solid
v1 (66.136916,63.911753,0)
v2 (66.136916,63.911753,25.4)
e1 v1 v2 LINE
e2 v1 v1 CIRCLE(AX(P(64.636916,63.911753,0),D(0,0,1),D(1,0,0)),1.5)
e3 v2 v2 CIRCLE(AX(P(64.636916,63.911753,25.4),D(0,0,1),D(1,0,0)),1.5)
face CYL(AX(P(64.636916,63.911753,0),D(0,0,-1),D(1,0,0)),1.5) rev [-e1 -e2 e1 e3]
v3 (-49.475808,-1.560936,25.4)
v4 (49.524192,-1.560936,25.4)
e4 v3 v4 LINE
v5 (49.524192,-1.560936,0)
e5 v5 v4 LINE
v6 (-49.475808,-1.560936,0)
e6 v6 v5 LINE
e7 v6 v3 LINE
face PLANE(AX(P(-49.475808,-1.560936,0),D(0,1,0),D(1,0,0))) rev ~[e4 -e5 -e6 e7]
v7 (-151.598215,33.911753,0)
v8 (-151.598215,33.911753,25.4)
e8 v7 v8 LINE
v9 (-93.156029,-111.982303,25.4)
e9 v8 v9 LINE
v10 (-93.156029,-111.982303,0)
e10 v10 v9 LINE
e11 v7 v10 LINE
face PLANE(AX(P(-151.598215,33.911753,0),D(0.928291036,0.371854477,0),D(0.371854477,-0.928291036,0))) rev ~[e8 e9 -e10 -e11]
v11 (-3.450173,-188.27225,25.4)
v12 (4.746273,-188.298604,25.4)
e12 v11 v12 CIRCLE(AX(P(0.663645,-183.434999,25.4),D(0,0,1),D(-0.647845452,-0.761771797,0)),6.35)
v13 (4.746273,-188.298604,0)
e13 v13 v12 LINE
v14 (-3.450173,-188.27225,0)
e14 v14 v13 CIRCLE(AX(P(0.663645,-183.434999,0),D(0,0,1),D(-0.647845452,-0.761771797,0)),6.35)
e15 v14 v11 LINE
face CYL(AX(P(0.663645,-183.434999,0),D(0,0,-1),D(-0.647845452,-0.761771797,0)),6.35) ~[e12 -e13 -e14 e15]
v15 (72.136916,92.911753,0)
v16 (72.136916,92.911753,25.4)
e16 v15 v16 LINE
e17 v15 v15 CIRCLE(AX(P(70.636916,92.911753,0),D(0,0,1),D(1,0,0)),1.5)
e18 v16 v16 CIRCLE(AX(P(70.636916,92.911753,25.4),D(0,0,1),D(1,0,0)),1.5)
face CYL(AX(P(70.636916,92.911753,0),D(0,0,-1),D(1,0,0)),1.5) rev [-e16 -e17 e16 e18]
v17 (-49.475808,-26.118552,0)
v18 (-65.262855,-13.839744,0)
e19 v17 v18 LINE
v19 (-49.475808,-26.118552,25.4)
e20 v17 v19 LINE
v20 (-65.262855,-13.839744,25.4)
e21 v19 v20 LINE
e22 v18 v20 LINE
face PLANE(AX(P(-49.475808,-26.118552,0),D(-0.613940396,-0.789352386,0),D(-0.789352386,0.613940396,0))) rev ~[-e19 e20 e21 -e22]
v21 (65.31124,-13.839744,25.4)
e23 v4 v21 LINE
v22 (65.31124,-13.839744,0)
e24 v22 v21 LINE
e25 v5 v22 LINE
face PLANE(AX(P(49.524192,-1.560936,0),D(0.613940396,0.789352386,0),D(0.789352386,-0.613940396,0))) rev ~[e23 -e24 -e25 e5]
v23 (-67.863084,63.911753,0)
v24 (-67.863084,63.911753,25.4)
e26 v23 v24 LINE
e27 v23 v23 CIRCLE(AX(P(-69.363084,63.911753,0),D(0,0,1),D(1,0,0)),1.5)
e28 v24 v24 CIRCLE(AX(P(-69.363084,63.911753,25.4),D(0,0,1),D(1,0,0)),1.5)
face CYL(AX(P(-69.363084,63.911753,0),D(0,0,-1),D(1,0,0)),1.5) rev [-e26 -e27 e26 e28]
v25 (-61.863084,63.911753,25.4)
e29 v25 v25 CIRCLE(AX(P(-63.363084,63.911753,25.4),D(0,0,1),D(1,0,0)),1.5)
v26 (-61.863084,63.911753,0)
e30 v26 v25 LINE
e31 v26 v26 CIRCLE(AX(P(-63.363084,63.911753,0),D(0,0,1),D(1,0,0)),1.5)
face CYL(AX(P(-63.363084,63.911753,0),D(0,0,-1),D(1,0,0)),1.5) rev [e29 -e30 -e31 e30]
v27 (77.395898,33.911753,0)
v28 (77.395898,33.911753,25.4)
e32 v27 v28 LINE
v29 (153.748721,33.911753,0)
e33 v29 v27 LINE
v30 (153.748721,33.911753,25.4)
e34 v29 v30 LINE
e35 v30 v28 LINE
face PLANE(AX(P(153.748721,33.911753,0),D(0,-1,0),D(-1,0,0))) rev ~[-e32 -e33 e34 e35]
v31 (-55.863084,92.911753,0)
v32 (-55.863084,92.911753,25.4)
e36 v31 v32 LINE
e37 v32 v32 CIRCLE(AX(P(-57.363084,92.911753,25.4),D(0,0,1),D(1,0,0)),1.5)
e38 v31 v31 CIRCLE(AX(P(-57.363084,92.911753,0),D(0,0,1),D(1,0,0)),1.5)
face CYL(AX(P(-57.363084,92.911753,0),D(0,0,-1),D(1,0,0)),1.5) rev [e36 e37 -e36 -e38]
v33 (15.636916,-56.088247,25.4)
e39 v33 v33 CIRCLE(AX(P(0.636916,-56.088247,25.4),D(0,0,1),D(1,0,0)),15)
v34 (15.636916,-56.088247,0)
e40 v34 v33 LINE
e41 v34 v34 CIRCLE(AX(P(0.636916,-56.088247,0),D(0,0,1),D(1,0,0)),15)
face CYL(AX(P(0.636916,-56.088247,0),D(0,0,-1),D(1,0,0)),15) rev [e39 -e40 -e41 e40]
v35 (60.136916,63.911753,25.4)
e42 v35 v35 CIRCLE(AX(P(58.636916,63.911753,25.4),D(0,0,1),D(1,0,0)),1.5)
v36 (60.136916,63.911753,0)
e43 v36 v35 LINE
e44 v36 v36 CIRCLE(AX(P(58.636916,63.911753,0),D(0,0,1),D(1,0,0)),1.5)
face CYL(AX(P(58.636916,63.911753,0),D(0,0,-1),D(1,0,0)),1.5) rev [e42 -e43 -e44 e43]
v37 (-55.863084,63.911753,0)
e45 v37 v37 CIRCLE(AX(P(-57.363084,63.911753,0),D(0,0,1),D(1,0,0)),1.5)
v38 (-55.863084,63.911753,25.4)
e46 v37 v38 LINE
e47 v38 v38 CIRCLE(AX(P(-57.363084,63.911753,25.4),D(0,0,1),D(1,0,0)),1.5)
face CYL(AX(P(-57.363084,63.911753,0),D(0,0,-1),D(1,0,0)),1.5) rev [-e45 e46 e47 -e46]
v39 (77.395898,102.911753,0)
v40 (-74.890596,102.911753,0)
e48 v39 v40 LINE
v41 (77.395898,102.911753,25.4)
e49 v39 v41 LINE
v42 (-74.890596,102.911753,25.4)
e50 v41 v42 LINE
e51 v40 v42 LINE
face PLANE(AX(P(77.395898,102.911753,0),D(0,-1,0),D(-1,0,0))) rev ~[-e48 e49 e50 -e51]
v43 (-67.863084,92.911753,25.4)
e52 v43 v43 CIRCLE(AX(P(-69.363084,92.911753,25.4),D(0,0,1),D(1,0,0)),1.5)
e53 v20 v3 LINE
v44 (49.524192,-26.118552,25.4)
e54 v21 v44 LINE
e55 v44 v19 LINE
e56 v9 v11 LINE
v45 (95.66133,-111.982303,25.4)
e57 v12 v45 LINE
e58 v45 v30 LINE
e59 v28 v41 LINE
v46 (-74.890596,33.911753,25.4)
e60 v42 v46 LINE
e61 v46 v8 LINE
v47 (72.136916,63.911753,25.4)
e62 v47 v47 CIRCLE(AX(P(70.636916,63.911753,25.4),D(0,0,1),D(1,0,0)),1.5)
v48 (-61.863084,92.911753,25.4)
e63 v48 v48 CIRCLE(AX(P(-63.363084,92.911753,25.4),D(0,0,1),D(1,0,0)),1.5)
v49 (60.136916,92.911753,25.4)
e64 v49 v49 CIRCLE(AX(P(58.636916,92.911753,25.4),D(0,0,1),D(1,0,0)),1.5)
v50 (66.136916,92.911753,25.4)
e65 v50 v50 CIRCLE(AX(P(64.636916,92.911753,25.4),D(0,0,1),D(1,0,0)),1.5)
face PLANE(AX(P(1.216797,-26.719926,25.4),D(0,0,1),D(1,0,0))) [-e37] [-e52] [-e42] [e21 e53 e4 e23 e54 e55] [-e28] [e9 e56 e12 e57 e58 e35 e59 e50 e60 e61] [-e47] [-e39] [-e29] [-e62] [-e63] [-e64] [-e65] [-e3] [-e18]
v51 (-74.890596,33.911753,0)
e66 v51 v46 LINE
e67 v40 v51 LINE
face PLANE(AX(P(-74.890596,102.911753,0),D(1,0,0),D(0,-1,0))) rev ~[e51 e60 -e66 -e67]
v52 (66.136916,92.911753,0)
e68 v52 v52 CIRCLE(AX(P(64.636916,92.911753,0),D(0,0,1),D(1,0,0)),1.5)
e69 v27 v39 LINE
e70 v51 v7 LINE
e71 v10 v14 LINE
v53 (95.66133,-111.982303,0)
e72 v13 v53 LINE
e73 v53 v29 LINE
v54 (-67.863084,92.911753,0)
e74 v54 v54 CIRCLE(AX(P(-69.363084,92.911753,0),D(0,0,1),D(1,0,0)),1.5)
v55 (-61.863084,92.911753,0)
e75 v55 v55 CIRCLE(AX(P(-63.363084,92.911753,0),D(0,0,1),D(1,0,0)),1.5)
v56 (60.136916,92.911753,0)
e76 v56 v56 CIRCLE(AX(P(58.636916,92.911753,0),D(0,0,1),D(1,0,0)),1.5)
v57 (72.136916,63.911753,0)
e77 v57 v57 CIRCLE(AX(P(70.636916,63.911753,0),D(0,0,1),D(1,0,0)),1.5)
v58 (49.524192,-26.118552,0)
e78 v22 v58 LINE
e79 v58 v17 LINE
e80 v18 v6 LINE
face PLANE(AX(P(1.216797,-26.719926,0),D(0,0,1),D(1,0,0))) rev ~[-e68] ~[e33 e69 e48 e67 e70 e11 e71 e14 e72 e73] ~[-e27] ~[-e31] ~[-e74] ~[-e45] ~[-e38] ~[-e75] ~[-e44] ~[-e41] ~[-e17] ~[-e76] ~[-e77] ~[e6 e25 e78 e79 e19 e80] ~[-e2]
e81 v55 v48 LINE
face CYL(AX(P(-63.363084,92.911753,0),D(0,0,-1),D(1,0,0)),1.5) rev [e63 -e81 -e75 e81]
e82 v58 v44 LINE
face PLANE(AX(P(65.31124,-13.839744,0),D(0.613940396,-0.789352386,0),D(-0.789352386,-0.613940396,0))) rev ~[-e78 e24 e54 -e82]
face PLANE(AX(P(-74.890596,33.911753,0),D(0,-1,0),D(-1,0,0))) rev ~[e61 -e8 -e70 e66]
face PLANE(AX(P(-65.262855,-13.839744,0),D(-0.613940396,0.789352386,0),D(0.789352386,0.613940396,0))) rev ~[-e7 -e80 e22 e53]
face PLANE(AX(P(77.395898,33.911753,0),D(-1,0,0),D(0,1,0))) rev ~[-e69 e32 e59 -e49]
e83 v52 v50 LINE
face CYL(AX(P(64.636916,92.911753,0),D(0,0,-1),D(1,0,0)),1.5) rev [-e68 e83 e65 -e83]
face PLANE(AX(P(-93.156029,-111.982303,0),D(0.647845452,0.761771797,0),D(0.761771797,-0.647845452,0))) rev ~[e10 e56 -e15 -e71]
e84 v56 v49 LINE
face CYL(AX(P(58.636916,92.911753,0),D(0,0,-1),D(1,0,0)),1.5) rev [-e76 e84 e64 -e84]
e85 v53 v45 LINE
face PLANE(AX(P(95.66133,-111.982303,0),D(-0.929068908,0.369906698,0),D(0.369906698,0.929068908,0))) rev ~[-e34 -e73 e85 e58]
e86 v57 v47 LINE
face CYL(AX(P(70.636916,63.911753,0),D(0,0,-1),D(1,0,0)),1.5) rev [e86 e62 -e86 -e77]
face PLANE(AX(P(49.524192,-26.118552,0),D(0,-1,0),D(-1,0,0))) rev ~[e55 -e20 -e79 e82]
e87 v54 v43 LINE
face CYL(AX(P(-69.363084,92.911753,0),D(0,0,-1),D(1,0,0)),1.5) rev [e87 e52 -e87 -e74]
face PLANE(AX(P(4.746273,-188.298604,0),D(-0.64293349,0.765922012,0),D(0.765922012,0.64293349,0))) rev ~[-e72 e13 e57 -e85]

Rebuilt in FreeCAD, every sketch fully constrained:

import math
import FreeCAD as App
import Part
import Sketcher
Q = App.Units.Quantity

doc = App.newDocument("Part")
params = doc.addObject("Spreadsheet::Sheet", "Params")
for row, (alias, value) in enumerate([
    ("sketch1_diameter", "30 mm"),
    ("sketch1_diameter2", "3 mm"),
    ("sketch1_width", "99 mm"),
    ("sketch1_height", "69 mm"),
    ("sketch1_radius", "6.35 mm"),
    ("pad1_length", "25.4 mm"),
], start=1):
    params.set(f"A{row}", alias)
    params.set(f"B{row}", "=" + value)
    params.setAlias(f"B{row}", alias)

body = doc.addObject("PartDesign::Body", "Body")

sketch1 = body.newObject("Sketcher::SketchObject", "Sketch")
sketch1.AttachmentSupport = (doc.getObject("XY_Plane"), [""])
sketch1.MapMode = "FlatFace"
sketch1.addGeometry(Part.LineSegment(App.Vector(77.4, 102.9, 0), App.Vector(-74.9, 102.9, 0)), False)
sketch1.addGeometry(Part.LineSegment(App.Vector(-74.9, 102.9, 0), App.Vector(-74.9, 33.9, 0)), False)
sketch1.addGeometry(Part.LineSegment(App.Vector(-74.9, 33.9, 0), App.Vector(-151.6, 33.9, 0)), False)
sketch1.addGeometry(Part.LineSegment(App.Vector(-151.6, 33.9, 0), App.Vector(-93.2, -112, 0)), False)
sketch1.addGeometry(Part.LineSegment(App.Vector(-93.2, -112, 0), App.Vector(-3.5, -188.3, 0)), False)
sketch1.addGeometry(Part.ArcOfCircle(Part.Circle(App.Vector(0.7, -183.4, 0), App.Vector(0, 0, 1), 6.3), math.radians(-130), math.radians(-50)), False)
sketch1.addGeometry(Part.LineSegment(App.Vector(4.7, -188.3, 0), App.Vector(95.7, -112, 0)), False)
sketch1.addGeometry(Part.LineSegment(App.Vector(95.7, -112, 0), App.Vector(153.7, 33.9, 0)), False)
sketch1.addGeometry(Part.LineSegment(App.Vector(153.7, 33.9, 0), App.Vector(77.4, 33.9, 0)), False)
sketch1.addGeometry(Part.LineSegment(App.Vector(77.4, 33.9, 0), App.Vector(77.4, 102.9, 0)), False)
sketch1.addGeometry(Part.LineSegment(App.Vector(49.5, -26.1, 0), App.Vector(-49.5, -26.1, 0)), False)
sketch1.addGeometry(Part.LineSegment(App.Vector(-49.5, -26.1, 0), App.Vector(-65.3, -13.8, 0)), False)
sketch1.addGeometry(Part.LineSegment(App.Vector(-65.3, -13.8, 0), App.Vector(-49.5, -1.6, 0)), False)
sketch1.addGeometry(Part.LineSegment(App.Vector(-49.5, -1.6, 0), App.Vector(49.5, -1.6, 0)), False)
sketch1.addGeometry(Part.LineSegment(App.Vector(49.5, -1.6, 0), App.Vector(65.3, -13.8, 0)), False)
sketch1.addGeometry(Part.LineSegment(App.Vector(65.3, -13.8, 0), App.Vector(49.5, -26.1, 0)), False)
sketch1.addGeometry(Part.Circle(App.Vector(0.6, -56.1, 0), App.Vector(0, 0, 1), 15), False)
sketch1.addGeometry(Part.Circle(App.Vector(-69.4, 63.9, 0), App.Vector(0, 0, 1), 1.5), False)
sketch1.addGeometry(Part.Circle(App.Vector(-63.4, 63.9, 0), App.Vector(0, 0, 1), 1.5), False)
sketch1.addGeometry(Part.Circle(App.Vector(-57.4, 63.9, 0), App.Vector(0, 0, 1), 1.5), False)
sketch1.addGeometry(Part.Circle(App.Vector(-69.4, 92.9, 0), App.Vector(0, 0, 1), 1.5), False)
sketch1.addGeometry(Part.Circle(App.Vector(-63.4, 92.9, 0), App.Vector(0, 0, 1), 1.5), False)
sketch1.addGeometry(Part.Circle(App.Vector(-57.4, 92.9, 0), App.Vector(0, 0, 1), 1.5), False)
sketch1.addGeometry(Part.Circle(App.Vector(58.6, 63.9, 0), App.Vector(0, 0, 1), 1.5), False)
sketch1.addGeometry(Part.Circle(App.Vector(64.6, 63.9, 0), App.Vector(0, 0, 1), 1.5), False)
sketch1.addGeometry(Part.Circle(App.Vector(70.6, 63.9, 0), App.Vector(0, 0, 1), 1.5), False)
sketch1.addGeometry(Part.Circle(App.Vector(58.6, 92.9, 0), App.Vector(0, 0, 1), 1.5), False)
sketch1.addGeometry(Part.Circle(App.Vector(64.6, 92.9, 0), App.Vector(0, 0, 1), 1.5), False)
sketch1.addGeometry(Part.Circle(App.Vector(70.6, 92.9, 0), App.Vector(0, 0, 1), 1.5), False)
sketch1.addConstraint(Sketcher.Constraint("Coincident", 0, 2, 1, 1))
sketch1.addConstraint(Sketcher.Constraint("Coincident", 1, 2, 2, 1))
sketch1.addConstraint(Sketcher.Constraint("Coincident", 2, 2, 3, 1))
sketch1.addConstraint(Sketcher.Constraint("Coincident", 3, 2, 4, 1))
sketch1.addConstraint(Sketcher.Constraint("Tangent", 4, 2, 5, 1))
sketch1.addConstraint(Sketcher.Constraint("Tangent", 5, 2, 6, 1))
sketch1.addConstraint(Sketcher.Constraint("Coincident", 6, 2, 7, 1))
sketch1.addConstraint(Sketcher.Constraint("Coincident", 7, 2, 8, 1))
sketch1.addConstraint(Sketcher.Constraint("Coincident", 8, 2, 9, 1))
sketch1.addConstraint(Sketcher.Constraint("Coincident", 9, 2, 0, 1))
sketch1.addConstraint(Sketcher.Constraint("Coincident", 10, 2, 11, 1))
sketch1.addConstraint(Sketcher.Constraint("Coincident", 11, 2, 12, 1))
sketch1.addConstraint(Sketcher.Constraint("Coincident", 12, 2, 13, 1))
sketch1.addConstraint(Sketcher.Constraint("Coincident", 13, 2, 14, 1))
sketch1.addConstraint(Sketcher.Constraint("Coincident", 14, 2, 15, 1))
sketch1.addConstraint(Sketcher.Constraint("Coincident", 15, 2, 10, 1))
sketch1.addConstraint(Sketcher.Constraint("Horizontal", 0))
sketch1.addConstraint(Sketcher.Constraint("Vertical", 1))
sketch1.addConstraint(Sketcher.Constraint("Horizontal", 2))
sketch1.addConstraint(Sketcher.Constraint("Horizontal", 8))
sketch1.addConstraint(Sketcher.Constraint("Vertical", 9))
sketch1.addConstraint(Sketcher.Constraint("Horizontal", 10))
sketch1.addConstraint(Sketcher.Constraint("Horizontal", 13))
sketch1.addConstraint(Sketcher.Constraint("Equal", 17, 18))
sketch1.addConstraint(Sketcher.Constraint("Equal", 18, 19))
sketch1.addConstraint(Sketcher.Constraint("Equal", 19, 20))
sketch1.addConstraint(Sketcher.Constraint("Equal", 20, 21))
sketch1.addConstraint(Sketcher.Constraint("Equal", 21, 22))
sketch1.addConstraint(Sketcher.Constraint("Equal", 22, 23))
sketch1.addConstraint(Sketcher.Constraint("Equal", 23, 24))
sketch1.addConstraint(Sketcher.Constraint("Equal", 24, 25))
sketch1.addConstraint(Sketcher.Constraint("Equal", 25, 26))
sketch1.addConstraint(Sketcher.Constraint("Equal", 26, 27))
sketch1.addConstraint(Sketcher.Constraint("Equal", 27, 28))
sketch1.addConstraint(Sketcher.Constraint("Parallel", 11, 14))
sketch1.addConstraint(Sketcher.Constraint("Parallel", 12, 15))
sketch1.addConstraint(Sketcher.Constraint("Horizontal", 17, 3, 18, 3))
sketch1.addConstraint(Sketcher.Constraint("Horizontal", 18, 3, 19, 3))
sketch1.addConstraint(Sketcher.Constraint("Horizontal", 20, 3, 21, 3))
sketch1.addConstraint(Sketcher.Constraint("Horizontal", 21, 3, 22, 3))
sketch1.addConstraint(Sketcher.Constraint("Horizontal", 19, 3, 23, 3))
sketch1.addConstraint(Sketcher.Constraint("Horizontal", 23, 3, 24, 3))
sketch1.addConstraint(Sketcher.Constraint("Horizontal", 24, 3, 25, 3))
sketch1.addConstraint(Sketcher.Constraint("Horizontal", 22, 3, 26, 3))
sketch1.addConstraint(Sketcher.Constraint("Horizontal", 26, 3, 27, 3))
sketch1.addConstraint(Sketcher.Constraint("Horizontal", 27, 3, 28, 3))
sketch1.addConstraint(Sketcher.Constraint("Horizontal", 3, 2, 6, 2))
sketch1.addConstraint(Sketcher.Constraint("Horizontal", 2, 2, 7, 2))
sketch1.addConstraint(Sketcher.Constraint("Horizontal", 11, 2, 14, 2))
sketch1.addConstraint(Sketcher.Constraint("Vertical", 17, 3, 20, 3))
sketch1.addConstraint(Sketcher.Constraint("Vertical", 18, 3, 21, 3))
sketch1.addConstraint(Sketcher.Constraint("Vertical", 19, 3, 22, 3))
sketch1.addConstraint(Sketcher.Constraint("Vertical", 23, 3, 26, 3))
sketch1.addConstraint(Sketcher.Constraint("Vertical", 24, 3, 27, 3))
sketch1.addConstraint(Sketcher.Constraint("Vertical", 25, 3, 28, 3))
sketch1.addConstraint(Sketcher.Constraint("Vertical", 10, 2, 12, 2))
sketch1.addConstraint(Sketcher.Constraint("Vertical", 13, 2, 15, 2))
sketch1.addConstraint(Sketcher.Constraint("Diameter", 16, Q("30 mm")))
sketch1.addConstraint(Sketcher.Constraint("Diameter", 17, Q("3 mm")))
sketch1.addConstraint(Sketcher.Constraint("DistanceX", 10, 2, 10, 1, Q("99 mm")))
sketch1.addConstraint(Sketcher.Constraint("DistanceY", 1, 2, 1, 1, Q("69 mm")))
sketch1.addConstraint(Sketcher.Constraint("Radius", 5, Q("6.35 mm")))
sketch1.addConstraint(Sketcher.Constraint("Distance", 11, Q("20 mm")))
sketch1.addConstraint(Sketcher.Constraint("DistanceX", 17, 3, 16, 3, Q("70 mm")))
sketch1.addConstraint(Sketcher.Constraint("DistanceY", 16, 3, 17, 3, Q("120 mm")))
sketch1.addConstraint(Sketcher.Constraint("DistanceX", 17, 3, 18, 3, Q("6 mm")))
sketch1.addConstraint(Sketcher.Constraint("DistanceX", 18, 3, 19, 3, Q("6 mm")))
sketch1.addConstraint(Sketcher.Constraint("DistanceY", 17, 3, 20, 3, Q("29 mm")))
sketch1.addConstraint(Sketcher.Constraint("DistanceX", 19, 3, 23, 3, Q("116 mm")))
sketch1.addConstraint(Sketcher.Constraint("DistanceX", 23, 3, 24, 3, Q("6 mm")))
sketch1.addConstraint(Sketcher.Constraint("DistanceX", 24, 3, 25, 3, Q("6 mm")))
sketch1.addConstraint(Sketcher.Constraint("DistanceY", 20, 3, 0, 2, Q("10 mm")))
sketch1.addConstraint(Sketcher.Constraint("DistanceY", 5, 3, -1, 1, Q("183.434999 mm")))
sketch1.addConstraint(Sketcher.Constraint("DistanceX", 2, 2, 2, 1, Q("76.707619 mm")))
sketch1.addConstraint(Sketcher.Constraint("DistanceX", 3, 2, 5, 2, Q("97.902302 mm")))
sketch1.addConstraint(Sketcher.Constraint("DistanceY", 5, 2, 3, 2, Q("76.316301 mm")))
sketch1.addConstraint(Sketcher.Constraint("Distance", 6, Q("118.70015 mm")))
sketch1.addConstraint(Sketcher.Constraint("DistanceX", 0, 2, 0, 1, Q("152.286494 mm")))
sketch1.addConstraint(Sketcher.Constraint("DistanceX", 8, 2, 8, 1, Q("76.352823 mm")))
sketch1.addConstraint(Sketcher.Constraint("DistanceX", 3, 2, -1, 1, Q("93.156029 mm")))
sketch1.addConstraint(Sketcher.Constraint("DistanceX", -1, 1, 7, 2, Q("153.748721 mm")))
sketch1.addConstraint(Sketcher.Constraint("DistanceX", -1, 1, 14, 2, Q("65.31124 mm")))
sketch1.addConstraint(Sketcher.Constraint("DistanceX", 16, 3, 5, 3, Q("0.026729 mm")))
sketch1.addConstraint(Sketcher.Constraint("DistanceX", 1, 2, 10, 2, Q("25.414788 mm")))
sketch1.addConstraint(Sketcher.Constraint("DistanceY", 12, 2, 1, 2, Q("35.472689 mm")))
sketch1.addConstraint(Sketcher.Constraint("Distance", 3, Q("157.164133 mm")))
sketch1.setExpression("Constraints[57]", "Params.sketch1_diameter")
sketch1.setExpression("Constraints[58]", "Params.sketch1_diameter2")
sketch1.setExpression("Constraints[59]", "Params.sketch1_width")
sketch1.setExpression("Constraints[60]", "Params.sketch1_height")
sketch1.setExpression("Constraints[61]", "Params.sketch1_radius")
pad1 = body.newObject("PartDesign::Pad", "Pad")
pad1.Profile = sketch1
pad1.setExpression("Length", "Params.pad1_length")

doc.recompute()
